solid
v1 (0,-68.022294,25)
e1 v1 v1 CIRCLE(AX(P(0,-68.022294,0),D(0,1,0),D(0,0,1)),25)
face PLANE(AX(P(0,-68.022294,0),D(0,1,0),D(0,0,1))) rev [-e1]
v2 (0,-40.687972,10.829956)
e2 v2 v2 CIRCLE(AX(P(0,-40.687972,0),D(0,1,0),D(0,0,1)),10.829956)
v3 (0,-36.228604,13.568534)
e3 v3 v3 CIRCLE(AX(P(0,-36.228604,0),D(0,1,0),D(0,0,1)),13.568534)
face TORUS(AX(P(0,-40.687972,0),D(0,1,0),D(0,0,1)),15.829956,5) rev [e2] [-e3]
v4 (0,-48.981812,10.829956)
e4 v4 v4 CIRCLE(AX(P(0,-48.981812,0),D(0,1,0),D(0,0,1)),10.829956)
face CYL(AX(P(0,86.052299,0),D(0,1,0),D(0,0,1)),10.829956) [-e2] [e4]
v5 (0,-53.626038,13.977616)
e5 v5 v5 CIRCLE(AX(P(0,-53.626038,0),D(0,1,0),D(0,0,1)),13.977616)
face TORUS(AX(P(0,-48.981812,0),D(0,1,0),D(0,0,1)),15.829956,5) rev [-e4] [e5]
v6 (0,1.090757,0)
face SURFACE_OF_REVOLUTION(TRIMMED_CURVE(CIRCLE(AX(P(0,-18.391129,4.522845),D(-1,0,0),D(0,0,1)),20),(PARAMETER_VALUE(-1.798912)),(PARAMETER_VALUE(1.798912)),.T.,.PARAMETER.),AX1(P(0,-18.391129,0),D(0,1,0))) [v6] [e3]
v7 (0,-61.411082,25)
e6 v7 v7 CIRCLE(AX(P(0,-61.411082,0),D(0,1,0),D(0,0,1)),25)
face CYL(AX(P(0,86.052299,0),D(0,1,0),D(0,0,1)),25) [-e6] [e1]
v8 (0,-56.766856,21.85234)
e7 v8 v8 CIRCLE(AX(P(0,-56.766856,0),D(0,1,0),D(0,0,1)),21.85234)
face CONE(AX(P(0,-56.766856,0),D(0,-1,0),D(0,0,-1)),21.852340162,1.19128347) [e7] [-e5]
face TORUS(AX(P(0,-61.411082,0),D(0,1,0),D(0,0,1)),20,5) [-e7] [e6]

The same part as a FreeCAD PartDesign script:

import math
import FreeCAD as App
import Part
import Sketcher

V = App.Vector
Q = App.Units.Quantity

doc = App.newDocument("Part")
body = doc.addObject("PartDesign::Body", "Body")

sketch1 = doc.addObject("Sketcher::SketchObject", "Sketch")
body.addObject(sketch1)
sketch1.AttachmentSupport = (doc.XY_Plane, [""])
sketch1.MapMode = "FlatFace"
sketch1.addGeometry([
    Part.LineSegment(V(0, -68, 0), V(25, -68, 0)),
    Part.LineSegment(V(25, -68, 0), V(25, -61.4, 0)),
    Part.ArcOfCircle(Part.Circle(V(20, -61.4, 0), V(0, 0, 1), 5), math.radians(0), math.radians(68)),
    Part.LineSegment(V(21.9, -56.8, 0), V(14, -53.6, 0)),
    Part.ArcOfCircle(Part.Circle(V(15.8, -49, 0), V(0, 0, 1), 5), math.radians(180), math.radians(248)),
    Part.LineSegment(V(10.8, -49, 0), V(10.8, -40.7, 0)),
    Part.ArcOfCircle(Part.Circle(V(15.8, -40.7, 0), V(0, 0, 1), 5), math.radians(117), math.radians(180)),
    Part.ArcOfCircle(Part.Circle(V(4.5, -18.4, 0), V(0, 0, 1), 20), math.radians(-63), math.radians(103)),
    Part.LineSegment(V(0, 1.1, 0), V(0, -68, 0)),
], False)
sketch1.addConstraint([
    Sketcher.Constraint("Coincident", 0, 2, 1, 1),
    Sketcher.Constraint("Tangent", 1, 2, 2, 1),
    Sketcher.Constraint("Tangent", 2, 2, 3, 1),
    Sketcher.Constraint("Tangent", 3, 2, 4, 2),
    Sketcher.Constraint("Tangent", 4, 1, 5, 1),
    Sketcher.Constraint("Tangent", 5, 2, 6, 2),
    Sketcher.Constraint("Tangent", 6, 1, 7, 1),
    Sketcher.Constraint("Coincident", 7, 2, 8, 1),
    Sketcher.Constraint("Coincident", 8, 2, 0, 1),
    Sketcher.Constraint("Horizontal", 0),
    Sketcher.Constraint("Vertical", 1),
    Sketcher.Constraint("Vertical", 5),
    Sketcher.Constraint("Vertical", 8),
    Sketcher.Constraint("Equal", 2, 4),
    Sketcher.Constraint("Equal", 4, 6),
    Sketcher.Constraint("PointOnObject", 7, 2, -2),
    Sketcher.Constraint("Radius", 2, Q("5 mm")),
    Sketcher.Constraint("Radius", 7, Q("20 mm")),
    Sketcher.Constraint("DistanceX", 0, 1, 0, 2, Q("25 mm")),
    Sketcher.Constraint("DistanceY", 1, 1, 1, 2, Q("6.611212 mm")),
    Sketcher.Constraint("DistanceY", 5, 1, 5, 2, Q("8.29384 mm")),
    Sketcher.Constraint("DistanceY", 8, 2, 8, 1, Q("69.113051 mm")),
    Sketcher.Constraint("DistanceY", 2, 3, -1, 1, Q("61.411082 mm")),
    Sketcher.Constraint("DistanceY", 7, 3, -1, 1, Q("18.391129 mm")),
    Sketcher.Constraint("DistanceX", -1, 1, 2, 2, Q("21.85234 mm")),
])
revolution = doc.addObject("PartDesign::Revolution", "Revolution")
body.addObject(revolution)
revolution.Profile = sketch1
revolution.ReferenceAxis = (sketch1, ["V_Axis"])
revolution.Angle = 360

doc.recompute()
